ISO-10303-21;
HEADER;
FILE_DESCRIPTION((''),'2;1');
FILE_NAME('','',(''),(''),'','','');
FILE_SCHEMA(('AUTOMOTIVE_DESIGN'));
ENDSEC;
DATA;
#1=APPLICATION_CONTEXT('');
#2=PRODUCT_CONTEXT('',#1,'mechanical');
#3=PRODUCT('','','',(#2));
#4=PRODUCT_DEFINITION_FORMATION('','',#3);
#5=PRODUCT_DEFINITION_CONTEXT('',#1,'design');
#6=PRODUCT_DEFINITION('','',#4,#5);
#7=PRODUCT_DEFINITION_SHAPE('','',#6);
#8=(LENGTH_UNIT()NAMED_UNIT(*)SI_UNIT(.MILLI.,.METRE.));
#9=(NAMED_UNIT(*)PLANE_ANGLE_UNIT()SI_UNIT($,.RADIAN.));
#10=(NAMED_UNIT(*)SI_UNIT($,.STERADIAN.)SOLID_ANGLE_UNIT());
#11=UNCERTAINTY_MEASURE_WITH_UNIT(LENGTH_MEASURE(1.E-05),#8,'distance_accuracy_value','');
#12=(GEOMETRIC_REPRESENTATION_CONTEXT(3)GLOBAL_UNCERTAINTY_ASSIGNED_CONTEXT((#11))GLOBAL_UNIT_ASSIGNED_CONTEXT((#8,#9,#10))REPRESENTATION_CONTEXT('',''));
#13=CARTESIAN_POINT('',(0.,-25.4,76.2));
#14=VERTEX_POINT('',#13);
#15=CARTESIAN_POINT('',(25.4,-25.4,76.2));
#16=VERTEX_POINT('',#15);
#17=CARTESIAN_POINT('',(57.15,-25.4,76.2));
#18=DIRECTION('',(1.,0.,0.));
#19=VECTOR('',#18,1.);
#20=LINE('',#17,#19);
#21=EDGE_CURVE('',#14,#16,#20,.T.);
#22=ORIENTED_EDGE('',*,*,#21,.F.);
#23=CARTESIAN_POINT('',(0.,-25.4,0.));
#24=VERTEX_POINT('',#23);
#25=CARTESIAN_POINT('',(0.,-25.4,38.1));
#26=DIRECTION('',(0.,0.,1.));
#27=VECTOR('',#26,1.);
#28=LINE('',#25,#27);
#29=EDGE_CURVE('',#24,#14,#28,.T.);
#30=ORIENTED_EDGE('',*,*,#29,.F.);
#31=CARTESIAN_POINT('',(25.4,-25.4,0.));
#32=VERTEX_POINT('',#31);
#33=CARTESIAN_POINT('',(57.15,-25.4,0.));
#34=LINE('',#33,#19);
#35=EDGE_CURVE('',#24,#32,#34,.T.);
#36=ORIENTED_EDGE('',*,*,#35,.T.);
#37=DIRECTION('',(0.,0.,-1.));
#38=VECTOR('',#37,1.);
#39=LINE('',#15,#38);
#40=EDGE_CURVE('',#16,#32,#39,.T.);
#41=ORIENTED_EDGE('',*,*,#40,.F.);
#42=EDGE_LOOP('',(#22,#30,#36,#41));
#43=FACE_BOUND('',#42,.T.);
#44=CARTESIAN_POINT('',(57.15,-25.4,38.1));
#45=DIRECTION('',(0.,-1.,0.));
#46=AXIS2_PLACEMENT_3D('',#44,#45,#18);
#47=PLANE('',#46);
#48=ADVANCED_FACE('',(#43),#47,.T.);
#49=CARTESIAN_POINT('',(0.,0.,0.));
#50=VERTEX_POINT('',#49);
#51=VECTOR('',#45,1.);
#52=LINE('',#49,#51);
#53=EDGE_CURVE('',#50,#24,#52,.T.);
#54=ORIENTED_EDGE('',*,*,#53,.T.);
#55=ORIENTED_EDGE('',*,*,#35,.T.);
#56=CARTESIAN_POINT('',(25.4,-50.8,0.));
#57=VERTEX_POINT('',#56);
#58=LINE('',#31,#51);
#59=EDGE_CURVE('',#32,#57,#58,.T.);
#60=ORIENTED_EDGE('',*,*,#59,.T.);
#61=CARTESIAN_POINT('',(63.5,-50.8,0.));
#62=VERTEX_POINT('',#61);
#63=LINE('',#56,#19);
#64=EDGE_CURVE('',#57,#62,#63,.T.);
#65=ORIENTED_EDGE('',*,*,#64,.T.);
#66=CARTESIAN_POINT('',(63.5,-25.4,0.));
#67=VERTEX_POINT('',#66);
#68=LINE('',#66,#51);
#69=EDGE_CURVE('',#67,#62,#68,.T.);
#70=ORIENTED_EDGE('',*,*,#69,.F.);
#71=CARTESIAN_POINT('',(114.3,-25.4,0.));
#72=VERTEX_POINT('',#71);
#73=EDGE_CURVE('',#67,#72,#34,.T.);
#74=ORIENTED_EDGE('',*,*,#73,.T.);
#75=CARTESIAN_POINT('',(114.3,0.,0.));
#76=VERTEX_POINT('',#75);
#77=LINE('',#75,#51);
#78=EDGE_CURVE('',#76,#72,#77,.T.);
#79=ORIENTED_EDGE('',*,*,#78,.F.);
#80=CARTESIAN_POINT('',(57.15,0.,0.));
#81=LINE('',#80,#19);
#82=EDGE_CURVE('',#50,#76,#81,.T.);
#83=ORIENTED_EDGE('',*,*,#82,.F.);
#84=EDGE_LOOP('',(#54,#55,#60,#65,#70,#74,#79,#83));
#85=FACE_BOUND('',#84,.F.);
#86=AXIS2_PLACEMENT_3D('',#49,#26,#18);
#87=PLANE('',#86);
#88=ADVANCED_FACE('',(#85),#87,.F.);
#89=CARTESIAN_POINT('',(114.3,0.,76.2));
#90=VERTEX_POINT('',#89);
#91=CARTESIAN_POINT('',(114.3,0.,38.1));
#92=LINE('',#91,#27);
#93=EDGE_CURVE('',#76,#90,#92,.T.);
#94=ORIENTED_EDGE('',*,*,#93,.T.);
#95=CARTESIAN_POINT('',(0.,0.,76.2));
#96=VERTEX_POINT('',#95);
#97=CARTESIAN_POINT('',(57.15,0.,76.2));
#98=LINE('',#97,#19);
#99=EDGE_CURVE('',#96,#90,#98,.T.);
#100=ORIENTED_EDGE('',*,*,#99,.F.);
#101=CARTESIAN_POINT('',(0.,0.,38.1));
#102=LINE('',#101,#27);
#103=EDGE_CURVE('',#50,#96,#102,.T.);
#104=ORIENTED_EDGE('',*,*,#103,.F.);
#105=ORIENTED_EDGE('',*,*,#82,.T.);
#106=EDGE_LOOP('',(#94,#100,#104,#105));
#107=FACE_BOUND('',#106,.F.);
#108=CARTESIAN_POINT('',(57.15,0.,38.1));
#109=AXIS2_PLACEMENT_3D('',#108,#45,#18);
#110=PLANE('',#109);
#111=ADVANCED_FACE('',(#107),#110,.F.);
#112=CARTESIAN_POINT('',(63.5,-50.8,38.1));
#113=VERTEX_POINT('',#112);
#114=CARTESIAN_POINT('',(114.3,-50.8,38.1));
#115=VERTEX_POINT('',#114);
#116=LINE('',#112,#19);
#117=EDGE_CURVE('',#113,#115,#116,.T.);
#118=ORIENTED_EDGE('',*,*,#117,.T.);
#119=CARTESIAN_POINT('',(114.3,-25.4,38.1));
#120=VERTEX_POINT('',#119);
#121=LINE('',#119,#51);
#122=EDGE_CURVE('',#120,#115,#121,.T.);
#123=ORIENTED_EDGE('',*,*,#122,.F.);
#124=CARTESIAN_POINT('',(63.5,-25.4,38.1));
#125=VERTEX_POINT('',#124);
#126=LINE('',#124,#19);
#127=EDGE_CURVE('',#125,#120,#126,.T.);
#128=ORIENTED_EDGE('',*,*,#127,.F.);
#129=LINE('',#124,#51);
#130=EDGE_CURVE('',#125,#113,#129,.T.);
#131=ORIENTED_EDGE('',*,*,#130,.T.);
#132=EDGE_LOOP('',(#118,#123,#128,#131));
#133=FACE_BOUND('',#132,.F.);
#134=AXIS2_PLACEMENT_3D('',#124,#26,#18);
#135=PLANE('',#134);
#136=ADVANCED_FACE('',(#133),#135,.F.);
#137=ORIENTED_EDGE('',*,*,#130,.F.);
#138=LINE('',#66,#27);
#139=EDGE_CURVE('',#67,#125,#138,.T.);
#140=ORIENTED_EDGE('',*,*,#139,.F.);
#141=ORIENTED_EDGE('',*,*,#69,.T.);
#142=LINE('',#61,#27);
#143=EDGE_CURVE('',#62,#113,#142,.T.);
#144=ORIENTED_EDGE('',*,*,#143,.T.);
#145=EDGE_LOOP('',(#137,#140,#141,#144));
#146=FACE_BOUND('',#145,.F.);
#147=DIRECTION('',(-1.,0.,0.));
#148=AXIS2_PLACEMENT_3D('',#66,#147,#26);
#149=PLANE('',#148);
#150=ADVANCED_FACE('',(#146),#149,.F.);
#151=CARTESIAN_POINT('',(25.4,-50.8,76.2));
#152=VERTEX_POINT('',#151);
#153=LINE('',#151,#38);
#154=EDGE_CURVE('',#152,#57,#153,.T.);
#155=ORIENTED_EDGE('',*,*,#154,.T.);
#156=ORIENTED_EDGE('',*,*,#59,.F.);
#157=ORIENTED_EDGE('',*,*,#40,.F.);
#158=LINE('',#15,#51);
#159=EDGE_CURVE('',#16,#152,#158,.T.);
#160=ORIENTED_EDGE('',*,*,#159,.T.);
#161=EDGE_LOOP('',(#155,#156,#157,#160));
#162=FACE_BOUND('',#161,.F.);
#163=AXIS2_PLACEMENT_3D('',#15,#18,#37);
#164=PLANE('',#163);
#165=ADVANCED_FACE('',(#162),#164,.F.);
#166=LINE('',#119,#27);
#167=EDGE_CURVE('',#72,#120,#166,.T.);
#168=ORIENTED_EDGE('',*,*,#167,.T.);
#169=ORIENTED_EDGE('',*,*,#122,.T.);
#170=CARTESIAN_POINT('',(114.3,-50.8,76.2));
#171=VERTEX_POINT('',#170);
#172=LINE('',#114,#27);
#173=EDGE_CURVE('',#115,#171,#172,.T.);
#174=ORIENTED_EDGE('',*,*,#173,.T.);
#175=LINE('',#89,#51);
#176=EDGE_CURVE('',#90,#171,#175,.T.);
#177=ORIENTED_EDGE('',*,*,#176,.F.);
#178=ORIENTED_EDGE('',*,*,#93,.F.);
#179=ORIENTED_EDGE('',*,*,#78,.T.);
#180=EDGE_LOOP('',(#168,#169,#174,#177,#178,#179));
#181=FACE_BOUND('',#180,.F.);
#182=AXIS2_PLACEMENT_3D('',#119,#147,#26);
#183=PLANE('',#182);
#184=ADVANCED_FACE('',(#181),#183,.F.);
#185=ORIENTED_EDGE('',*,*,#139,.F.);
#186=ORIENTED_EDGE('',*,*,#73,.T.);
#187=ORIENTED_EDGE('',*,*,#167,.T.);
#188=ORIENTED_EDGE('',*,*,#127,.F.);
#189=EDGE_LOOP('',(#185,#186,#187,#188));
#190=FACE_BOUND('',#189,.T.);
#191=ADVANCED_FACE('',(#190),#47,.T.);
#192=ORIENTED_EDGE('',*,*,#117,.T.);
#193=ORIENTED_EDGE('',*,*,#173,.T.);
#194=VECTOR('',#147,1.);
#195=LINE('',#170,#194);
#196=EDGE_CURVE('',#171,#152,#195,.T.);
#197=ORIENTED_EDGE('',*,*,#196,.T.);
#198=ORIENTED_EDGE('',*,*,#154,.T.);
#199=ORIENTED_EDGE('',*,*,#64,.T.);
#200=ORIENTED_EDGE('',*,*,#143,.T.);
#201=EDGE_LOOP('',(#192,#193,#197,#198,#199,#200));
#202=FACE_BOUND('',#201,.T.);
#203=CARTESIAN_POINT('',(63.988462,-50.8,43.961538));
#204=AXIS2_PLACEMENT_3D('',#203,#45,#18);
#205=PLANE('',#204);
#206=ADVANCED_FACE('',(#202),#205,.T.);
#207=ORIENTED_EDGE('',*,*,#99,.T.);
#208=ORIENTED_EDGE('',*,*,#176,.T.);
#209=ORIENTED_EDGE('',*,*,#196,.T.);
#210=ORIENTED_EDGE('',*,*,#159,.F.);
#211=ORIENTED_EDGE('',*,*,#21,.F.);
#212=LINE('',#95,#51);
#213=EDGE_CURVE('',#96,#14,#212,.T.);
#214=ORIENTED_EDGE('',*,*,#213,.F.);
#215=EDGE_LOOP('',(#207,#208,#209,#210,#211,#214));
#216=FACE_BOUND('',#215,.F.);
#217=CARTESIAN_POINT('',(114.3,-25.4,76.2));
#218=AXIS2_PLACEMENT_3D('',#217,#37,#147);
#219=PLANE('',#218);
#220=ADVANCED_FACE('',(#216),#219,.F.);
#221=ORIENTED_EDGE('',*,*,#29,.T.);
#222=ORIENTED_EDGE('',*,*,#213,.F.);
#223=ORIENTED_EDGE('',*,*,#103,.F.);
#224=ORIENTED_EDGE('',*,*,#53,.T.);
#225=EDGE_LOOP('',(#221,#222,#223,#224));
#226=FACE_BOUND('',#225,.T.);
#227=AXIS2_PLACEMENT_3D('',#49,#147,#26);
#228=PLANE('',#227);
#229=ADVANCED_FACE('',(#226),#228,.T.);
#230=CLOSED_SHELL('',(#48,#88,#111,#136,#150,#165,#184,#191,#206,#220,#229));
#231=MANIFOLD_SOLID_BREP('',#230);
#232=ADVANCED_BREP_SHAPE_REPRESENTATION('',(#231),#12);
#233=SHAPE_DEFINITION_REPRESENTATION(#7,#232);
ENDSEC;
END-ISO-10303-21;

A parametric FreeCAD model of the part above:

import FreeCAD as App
import Part
import Sketcher
from FreeCAD import Vector
Q = App.Units.Quantity


def add_polygon(sketch, points):
    """Adds a closed chain of lines whose ends are joined by coincident constraints."""
    first, n = sketch.GeometryCount, len(points)
    for a, b in zip(points, points[1:] + points[:1]):
        sketch.addGeometry(Part.LineSegment(App.Vector(*a, 0), App.Vector(*b, 0)), False)
    for i in range(n):
        sketch.addConstraint(Sketcher.Constraint("Coincident", first + i, 2, first + (i + 1) % n, 1))

doc = App.newDocument("Part")
body = doc.addObject("PartDesign::Body", "Body")

# Sketch on XZ plane
sketch1 = body.newObject("Sketcher::SketchObject", "Sketch")
sketch1.AttachmentSupport = (doc.getObject("XZ_Plane"), [""])
sketch1.MapMode = "FlatFace"
add_polygon(sketch1, [(0, 76), (0, 0), (114, 0), (114, 76)])  # lines 0-3
sketch1.addConstraint([
    Sketcher.Constraint("Vertical", 0),
    Sketcher.Constraint("Horizontal", 1),
    Sketcher.Constraint("Vertical", 2),
    Sketcher.Constraint("Horizontal", 3),
    Sketcher.Constraint("Coincident", 0, 2, -1, 1),
    Sketcher.Constraint("DistanceY", 0, 2, 0, 1, Q("3 in")),
    Sketcher.Constraint("DistanceX", 1, 1, 1, 2, Q("4.5 in")),
])
pad1 = body.newObject("PartDesign::Pad", "Pad")
pad1.Profile = sketch1
pad1.Length = Q("1 in")

# Sketch on XZ plane
sketch2 = body.newObject("Sketcher::SketchObject", "Sketch001")
sketch2.AttachmentSupport = (doc.getObject("XZ_Plane"), [""])
sketch2.MapMode = "FlatFace"
sketch2.AttachmentOffset = App.Placement(Vector(0, 0, 1 * 25.4), App.Rotation())
add_polygon(sketch2, [(114, 38), (114, 76), (25, 76), (25, 0), (64, 0), (64, 38)])  # lines 0-5
sketch2.addConstraint([
    Sketcher.Constraint("Vertical", 0),
    Sketcher.Constraint("Horizontal", 1),
    Sketcher.Constraint("Vertical", 2),
    Sketcher.Constraint("Horizontal", 3),
    Sketcher.Constraint("Vertical", 4),
    Sketcher.Constraint("Horizontal", 5),
    Sketcher.Constraint("PointOnObject", 2, 2, -1),
    Sketcher.Constraint("Equal", 3, 0),
    Sketcher.Constraint("Equal", 0, 4),
    Sketcher.Constraint("DistanceX", 5, 1, 5, 2, Q("2 in")),
    Sketcher.Constraint("DistanceY", 2, 2, 2, 1, Q("3 in")),
    Sketcher.Constraint("DistanceX", -1, 1, 1, 2, Q("1 in")),
])
pad2 = body.newObject("PartDesign::Pad", "Pad001")
pad2.Profile = sketch2
pad2.Length = Q("1 in")

doc.recompute()
